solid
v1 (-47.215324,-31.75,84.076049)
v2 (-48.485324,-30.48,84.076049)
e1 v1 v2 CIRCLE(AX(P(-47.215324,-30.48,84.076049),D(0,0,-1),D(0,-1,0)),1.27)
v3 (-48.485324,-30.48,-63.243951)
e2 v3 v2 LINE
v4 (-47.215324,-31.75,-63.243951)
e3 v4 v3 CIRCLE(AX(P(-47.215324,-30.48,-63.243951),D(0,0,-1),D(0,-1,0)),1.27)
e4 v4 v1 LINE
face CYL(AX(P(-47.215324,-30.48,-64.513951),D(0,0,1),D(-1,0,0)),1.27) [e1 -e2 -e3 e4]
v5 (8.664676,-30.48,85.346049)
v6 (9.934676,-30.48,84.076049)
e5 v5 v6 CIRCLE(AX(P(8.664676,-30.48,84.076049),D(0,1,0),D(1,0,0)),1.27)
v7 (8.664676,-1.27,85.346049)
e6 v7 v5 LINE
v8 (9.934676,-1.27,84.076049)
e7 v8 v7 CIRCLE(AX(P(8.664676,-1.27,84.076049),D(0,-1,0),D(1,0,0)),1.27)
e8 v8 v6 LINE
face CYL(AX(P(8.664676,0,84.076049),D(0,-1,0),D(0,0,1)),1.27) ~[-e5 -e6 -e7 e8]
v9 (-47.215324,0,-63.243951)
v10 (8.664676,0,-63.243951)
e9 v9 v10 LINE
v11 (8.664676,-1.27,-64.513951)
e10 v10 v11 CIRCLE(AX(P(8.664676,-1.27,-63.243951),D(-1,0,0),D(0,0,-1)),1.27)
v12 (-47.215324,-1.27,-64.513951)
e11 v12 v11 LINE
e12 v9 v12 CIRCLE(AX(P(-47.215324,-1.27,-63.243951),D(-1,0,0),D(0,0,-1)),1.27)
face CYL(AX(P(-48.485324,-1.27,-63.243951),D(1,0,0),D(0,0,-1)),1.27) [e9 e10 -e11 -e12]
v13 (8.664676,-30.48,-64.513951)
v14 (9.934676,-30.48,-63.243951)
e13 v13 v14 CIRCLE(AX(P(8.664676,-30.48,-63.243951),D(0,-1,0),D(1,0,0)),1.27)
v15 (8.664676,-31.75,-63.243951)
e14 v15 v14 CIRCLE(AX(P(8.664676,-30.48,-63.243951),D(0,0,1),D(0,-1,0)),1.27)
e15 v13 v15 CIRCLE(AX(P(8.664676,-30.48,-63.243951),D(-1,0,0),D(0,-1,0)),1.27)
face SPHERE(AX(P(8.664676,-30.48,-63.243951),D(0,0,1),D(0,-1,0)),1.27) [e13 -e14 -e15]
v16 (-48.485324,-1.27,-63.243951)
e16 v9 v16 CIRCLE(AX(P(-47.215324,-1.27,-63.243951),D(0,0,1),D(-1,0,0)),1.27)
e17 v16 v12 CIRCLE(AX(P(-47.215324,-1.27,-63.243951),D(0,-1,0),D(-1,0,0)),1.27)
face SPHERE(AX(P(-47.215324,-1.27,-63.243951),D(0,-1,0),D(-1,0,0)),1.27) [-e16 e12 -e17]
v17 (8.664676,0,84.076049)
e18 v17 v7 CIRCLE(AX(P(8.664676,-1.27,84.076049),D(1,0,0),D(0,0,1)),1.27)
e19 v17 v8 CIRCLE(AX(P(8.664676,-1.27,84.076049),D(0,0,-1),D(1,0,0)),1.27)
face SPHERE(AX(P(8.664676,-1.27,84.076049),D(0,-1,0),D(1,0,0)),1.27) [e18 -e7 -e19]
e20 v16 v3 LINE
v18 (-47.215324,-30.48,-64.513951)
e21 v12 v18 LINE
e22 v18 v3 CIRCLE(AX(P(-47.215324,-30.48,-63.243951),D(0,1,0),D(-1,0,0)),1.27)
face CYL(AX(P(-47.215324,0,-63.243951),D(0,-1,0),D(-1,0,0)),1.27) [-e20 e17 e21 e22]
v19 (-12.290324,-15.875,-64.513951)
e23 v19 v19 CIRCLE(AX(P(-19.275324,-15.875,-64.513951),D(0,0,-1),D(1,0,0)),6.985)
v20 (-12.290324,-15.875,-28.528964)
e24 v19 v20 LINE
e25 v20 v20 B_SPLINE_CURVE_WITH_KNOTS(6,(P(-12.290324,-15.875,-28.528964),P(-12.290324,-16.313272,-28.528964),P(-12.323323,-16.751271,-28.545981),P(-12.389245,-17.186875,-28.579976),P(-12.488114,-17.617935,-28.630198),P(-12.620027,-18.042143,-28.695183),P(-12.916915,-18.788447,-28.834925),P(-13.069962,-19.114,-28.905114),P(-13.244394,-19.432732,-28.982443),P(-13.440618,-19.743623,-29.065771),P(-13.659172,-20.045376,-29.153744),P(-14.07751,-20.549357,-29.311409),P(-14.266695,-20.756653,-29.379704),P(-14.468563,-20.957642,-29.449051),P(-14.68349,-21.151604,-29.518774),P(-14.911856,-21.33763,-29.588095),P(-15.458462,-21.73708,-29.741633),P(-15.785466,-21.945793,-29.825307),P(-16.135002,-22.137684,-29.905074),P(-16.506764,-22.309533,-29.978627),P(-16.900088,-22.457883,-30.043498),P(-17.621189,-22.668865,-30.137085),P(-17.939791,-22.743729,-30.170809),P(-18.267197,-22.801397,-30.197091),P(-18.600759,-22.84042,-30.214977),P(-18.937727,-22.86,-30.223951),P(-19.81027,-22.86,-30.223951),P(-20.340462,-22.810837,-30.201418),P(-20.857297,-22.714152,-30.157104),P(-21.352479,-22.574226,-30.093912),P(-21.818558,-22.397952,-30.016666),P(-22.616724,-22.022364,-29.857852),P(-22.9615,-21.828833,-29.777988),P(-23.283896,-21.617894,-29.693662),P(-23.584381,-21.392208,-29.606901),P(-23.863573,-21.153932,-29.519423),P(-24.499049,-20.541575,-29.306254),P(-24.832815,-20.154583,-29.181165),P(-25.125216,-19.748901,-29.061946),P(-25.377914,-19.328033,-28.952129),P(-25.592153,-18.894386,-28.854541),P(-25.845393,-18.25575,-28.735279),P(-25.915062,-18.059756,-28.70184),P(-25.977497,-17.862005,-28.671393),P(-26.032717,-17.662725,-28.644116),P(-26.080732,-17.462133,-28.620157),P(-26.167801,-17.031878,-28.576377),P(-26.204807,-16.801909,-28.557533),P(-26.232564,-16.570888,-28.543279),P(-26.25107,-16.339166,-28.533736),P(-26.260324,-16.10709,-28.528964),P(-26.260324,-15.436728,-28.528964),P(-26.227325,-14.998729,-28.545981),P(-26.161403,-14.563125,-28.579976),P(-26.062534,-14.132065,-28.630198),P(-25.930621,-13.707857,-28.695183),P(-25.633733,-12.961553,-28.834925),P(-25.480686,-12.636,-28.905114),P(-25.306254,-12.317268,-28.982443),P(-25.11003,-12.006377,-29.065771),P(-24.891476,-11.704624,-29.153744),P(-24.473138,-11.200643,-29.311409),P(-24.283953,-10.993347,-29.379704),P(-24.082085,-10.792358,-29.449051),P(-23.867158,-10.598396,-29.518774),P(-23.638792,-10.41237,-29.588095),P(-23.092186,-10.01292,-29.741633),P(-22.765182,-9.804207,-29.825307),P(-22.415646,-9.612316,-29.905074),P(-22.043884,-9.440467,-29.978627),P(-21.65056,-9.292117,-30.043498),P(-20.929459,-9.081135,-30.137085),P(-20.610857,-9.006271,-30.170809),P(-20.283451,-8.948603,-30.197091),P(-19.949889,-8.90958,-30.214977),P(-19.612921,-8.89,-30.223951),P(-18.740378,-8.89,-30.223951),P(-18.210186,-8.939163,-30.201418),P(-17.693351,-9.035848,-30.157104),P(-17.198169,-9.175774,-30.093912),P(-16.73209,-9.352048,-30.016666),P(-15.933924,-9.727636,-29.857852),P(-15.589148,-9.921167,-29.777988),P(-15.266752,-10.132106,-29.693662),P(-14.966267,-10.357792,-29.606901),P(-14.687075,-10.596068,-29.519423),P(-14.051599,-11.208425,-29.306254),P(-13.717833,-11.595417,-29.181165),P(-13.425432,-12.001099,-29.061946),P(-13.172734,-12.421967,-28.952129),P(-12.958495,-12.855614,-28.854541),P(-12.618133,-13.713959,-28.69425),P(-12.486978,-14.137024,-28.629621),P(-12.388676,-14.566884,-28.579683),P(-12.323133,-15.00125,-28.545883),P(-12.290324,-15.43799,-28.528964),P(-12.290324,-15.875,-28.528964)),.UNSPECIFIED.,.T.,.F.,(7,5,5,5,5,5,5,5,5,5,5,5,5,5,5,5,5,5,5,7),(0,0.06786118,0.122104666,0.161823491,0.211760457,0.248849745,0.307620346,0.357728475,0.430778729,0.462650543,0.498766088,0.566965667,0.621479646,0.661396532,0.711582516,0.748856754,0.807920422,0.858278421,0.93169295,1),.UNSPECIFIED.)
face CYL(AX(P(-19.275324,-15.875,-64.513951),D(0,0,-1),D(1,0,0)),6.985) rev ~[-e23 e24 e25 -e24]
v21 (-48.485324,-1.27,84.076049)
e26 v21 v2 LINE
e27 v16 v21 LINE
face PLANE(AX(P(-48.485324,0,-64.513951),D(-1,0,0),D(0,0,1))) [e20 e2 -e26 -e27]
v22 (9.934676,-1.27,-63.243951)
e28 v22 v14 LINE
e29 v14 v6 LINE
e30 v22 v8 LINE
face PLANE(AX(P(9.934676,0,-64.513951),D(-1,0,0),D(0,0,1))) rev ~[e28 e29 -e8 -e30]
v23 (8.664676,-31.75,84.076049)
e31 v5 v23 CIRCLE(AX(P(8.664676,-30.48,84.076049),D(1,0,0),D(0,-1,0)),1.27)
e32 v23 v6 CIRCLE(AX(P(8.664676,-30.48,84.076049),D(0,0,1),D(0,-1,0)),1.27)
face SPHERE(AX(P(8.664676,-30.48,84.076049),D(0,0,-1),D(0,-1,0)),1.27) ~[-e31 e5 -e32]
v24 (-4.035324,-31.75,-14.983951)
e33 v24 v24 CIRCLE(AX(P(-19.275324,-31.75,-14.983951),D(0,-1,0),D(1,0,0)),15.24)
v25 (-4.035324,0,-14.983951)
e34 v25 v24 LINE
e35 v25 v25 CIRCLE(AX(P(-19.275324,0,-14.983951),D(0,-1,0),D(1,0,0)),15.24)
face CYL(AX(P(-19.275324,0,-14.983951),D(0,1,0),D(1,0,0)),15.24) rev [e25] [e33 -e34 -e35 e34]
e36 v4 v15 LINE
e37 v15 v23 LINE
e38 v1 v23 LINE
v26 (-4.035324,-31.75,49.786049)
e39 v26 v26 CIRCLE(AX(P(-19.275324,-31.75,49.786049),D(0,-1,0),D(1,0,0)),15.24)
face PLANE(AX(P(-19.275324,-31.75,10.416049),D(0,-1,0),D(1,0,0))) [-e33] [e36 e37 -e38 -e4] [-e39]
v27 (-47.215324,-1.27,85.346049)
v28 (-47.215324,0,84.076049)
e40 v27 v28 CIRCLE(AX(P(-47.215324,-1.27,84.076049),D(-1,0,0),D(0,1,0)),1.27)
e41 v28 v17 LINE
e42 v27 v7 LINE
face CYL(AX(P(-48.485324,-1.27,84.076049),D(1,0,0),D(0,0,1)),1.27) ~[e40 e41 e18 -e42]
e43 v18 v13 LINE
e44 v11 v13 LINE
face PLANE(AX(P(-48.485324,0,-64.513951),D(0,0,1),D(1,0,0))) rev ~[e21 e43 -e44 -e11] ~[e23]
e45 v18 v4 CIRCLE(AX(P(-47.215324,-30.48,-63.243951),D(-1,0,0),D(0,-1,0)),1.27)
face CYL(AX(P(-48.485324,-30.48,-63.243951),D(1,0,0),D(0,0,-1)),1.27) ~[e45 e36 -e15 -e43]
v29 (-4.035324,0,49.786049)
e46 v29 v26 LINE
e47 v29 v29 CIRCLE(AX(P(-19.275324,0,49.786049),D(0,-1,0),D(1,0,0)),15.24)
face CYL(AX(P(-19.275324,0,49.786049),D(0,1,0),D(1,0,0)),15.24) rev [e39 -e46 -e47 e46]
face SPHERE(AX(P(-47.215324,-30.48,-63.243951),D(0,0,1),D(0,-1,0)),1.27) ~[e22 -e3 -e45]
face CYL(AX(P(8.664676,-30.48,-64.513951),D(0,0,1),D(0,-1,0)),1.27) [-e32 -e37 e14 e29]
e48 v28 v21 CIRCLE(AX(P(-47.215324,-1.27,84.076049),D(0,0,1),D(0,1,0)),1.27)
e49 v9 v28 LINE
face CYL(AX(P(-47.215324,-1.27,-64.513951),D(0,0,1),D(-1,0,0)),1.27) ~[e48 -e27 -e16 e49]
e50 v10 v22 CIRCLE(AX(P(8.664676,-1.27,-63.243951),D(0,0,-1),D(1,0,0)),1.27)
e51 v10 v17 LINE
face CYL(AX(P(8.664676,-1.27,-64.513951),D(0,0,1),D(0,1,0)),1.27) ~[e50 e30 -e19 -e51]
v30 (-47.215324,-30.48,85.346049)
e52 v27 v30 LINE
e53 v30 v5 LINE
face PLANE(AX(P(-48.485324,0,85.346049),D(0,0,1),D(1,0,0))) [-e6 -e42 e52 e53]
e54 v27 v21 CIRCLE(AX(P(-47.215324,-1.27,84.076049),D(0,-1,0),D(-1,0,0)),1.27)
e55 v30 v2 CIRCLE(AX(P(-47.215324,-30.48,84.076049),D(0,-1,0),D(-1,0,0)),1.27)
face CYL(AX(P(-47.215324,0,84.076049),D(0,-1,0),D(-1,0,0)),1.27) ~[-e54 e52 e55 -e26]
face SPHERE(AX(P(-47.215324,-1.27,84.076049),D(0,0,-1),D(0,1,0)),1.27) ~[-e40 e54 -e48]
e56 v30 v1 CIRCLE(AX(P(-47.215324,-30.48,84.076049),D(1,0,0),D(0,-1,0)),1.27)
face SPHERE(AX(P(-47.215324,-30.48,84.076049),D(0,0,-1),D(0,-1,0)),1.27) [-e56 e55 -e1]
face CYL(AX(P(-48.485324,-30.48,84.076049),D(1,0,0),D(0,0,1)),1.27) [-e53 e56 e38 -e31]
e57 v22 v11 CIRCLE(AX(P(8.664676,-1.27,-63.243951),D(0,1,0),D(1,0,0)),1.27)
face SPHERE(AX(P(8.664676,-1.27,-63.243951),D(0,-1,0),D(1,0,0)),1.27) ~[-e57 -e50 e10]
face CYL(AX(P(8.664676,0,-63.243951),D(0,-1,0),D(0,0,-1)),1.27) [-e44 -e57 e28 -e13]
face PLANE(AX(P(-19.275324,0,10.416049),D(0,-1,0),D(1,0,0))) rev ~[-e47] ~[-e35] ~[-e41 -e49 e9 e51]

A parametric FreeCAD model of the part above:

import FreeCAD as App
import Part
import Sketcher
from FreeCAD import Vector
Q = App.Units.Quantity


def edges_at(feature, points):
    """Names of the edges that pass closest to the given points."""
    edges = feature.Shape.Edges
    near = lambda p: min(range(len(edges)), key=lambda i: edges[i].distToShape(Part.Vertex(*p))[0])
    return sorted({f"Edge{near(p) + 1}" for p in points})

doc = App.newDocument("Part")
body = doc.addObject("PartDesign::Body", "Body")

# Sketch on XZ plane
sketch1 = doc.addObject("Sketcher::SketchObject", "Sketch")
body.addObject(sketch1)
sketch1.AttachmentSupport = (doc.XZ_Plane, [""])
sketch1.MapMode = "FlatFace"
sketch1.addGeometry(Part.LineSegment(Vector(-48.485324, 85.346049, 0), Vector(-48.485324, -64.513951, 0)), False)
sketch1.addGeometry(Part.LineSegment(Vector(-48.485324, -64.513951, 0), Vector(9.934676, -64.513951, 0)), False)
sketch1.addGeometry(Part.LineSegment(Vector(9.934676, -64.513951, 0), Vector(9.934676, 85.346049, 0)), False)
sketch1.addGeometry(Part.LineSegment(Vector(9.934676, 85.346049, 0), Vector(-48.485324, 85.346049, 0)), False)
sketch1.addGeometry(Part.Circle(Vector(-19.275324, -14.983951, 0), Vector(0, 0, 1), 15.24), False)
sketch1.addGeometry(Part.Circle(Vector(-19.275324, 49.786049, 0), Vector(0, 0, 1), 15.24), False)
sketch1.addConstraint(Sketcher.Constraint("Coincident", 0, 2, 1, 1))
sketch1.addConstraint(Sketcher.Constraint("Coincident", 1, 2, 2, 1))
sketch1.addConstraint(Sketcher.Constraint("Coincident", 2, 2, 3, 1))
sketch1.addConstraint(Sketcher.Constraint("Coincident", 3, 2, 0, 1))
sketch1.addConstraint(Sketcher.Constraint("Vertical", 0))
sketch1.addConstraint(Sketcher.Constraint("Horizontal", 1))
sketch1.addConstraint(Sketcher.Constraint("Vertical", 2))
sketch1.addConstraint(Sketcher.Constraint("Horizontal", 3))
sketch1.addConstraint(Sketcher.Constraint("Equal", 4, 5))
sketch1.addConstraint(Sketcher.Constraint("Vertical", 4, 3, 5, 3))
sketch1.addConstraint(Sketcher.Constraint("Diameter", 4, Q("1.2 in")))
sketch1.addConstraint(Sketcher.Constraint("DistanceX", 1, 1, 1, 2, Q("2.3 in")))
sketch1.addConstraint(Sketcher.Constraint("DistanceY", 0, 2, 0, 1, Q("5.9 in")))
sketch1.addConstraint(Sketcher.Constraint("DistanceY", 0, 2, 5, 3, Q("4.5 in")))
sketch1.addConstraint(Sketcher.Constraint("DistanceY", 4, 3, 5, 3, Q("2.55 in")))
sketch1.addConstraint(Sketcher.Constraint("DistanceX", 0, 2, 4, 3, Q("1.15 in")))
sketch1.addConstraint(Sketcher.Constraint("DistanceY", 4, 3, -1, 1, 14.983951))
sketch1.addConstraint(Sketcher.Constraint("DistanceX", 4, 3, -1, 1, 19.275324))
pad1 = doc.addObject("PartDesign::Pad", "Pad")
body.addObject(pad1)
pad1.Profile = sketch1
pad1.Length = Q("1.25 in")

# Sketch on XY plane
sketch2 = doc.addObject("Sketcher::SketchObject", "Sketch001")
body.addObject(sketch2)
sketch2.AttachmentSupport = (doc.XY_Plane, [""])
sketch2.MapMode = "FlatFace"
sketch2.AttachmentOffset = App.Placement(Vector(0, 0, -64.513951), App.Rotation())
sketch2.addGeometry(Part.Circle(Vector(-19.275324, -15.875, 0), Vector(0, 0, 1), 6.985), False)
sketch2.addConstraint(Sketcher.Constraint("Diameter", 0, Q("0.55 in")))
sketch2.addConstraint(Sketcher.Constraint("DistanceY", 0, 3, -1, 1, Q("0.625 in")))
sketch2.addConstraint(Sketcher.Constraint("DistanceX", 0, 3, -1, 1, 19.275324))
pocket1 = doc.addObject("PartDesign::Pocket", "Pocket")
body.addObject(pocket1)
pocket1.Profile = sketch2
pocket1.Length = Q("1.85 in")
pocket1.Reversed = True
doc.recompute()

fillet = doc.addObject("PartDesign::Fillet", "Fillet")
body.addObject(fillet)
fillet.Base = (pocket1, edges_at(pocket1, [
    (-48.485, -31.75, 10.416),
    (9.935, -31.75, 10.416),
    (-19.275, -31.75, -64.514),
    (-19.275, -31.75, 85.346),
    (-48.485, -15.875, -64.514),
    (9.935, -15.875, -64.514),
    (-48.485, 0, 10.416),
    (9.935, -15.875, 85.346),
    (9.935, 0, 10.416),
    (-19.275, 0, -64.514),
    (-19.275, 0, 85.346),
    (-48.485, -15.875, 85.346),
]))
fillet.Radius = Q("0.05 in")

doc.recompute()
